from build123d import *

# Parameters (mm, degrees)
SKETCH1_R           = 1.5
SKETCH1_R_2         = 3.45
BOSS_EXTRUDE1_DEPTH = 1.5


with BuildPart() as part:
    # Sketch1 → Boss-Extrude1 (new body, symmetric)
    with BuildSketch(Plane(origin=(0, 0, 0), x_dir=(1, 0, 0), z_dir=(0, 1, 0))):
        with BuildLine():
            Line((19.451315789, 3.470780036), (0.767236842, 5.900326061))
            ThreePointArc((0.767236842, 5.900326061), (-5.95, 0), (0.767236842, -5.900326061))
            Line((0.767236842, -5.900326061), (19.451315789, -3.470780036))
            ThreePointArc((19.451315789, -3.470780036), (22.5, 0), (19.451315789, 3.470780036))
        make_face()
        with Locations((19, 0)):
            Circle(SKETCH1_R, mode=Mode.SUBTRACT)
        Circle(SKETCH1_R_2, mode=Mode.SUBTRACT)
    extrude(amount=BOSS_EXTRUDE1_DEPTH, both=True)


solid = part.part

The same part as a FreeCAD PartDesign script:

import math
import FreeCAD as App
import Part
import Sketcher
from FreeCAD import Vector

doc = App.newDocument("Part")
params = doc.addObject("Spreadsheet::Sheet", "Params")
for row, (alias, value) in enumerate([
    ("sketch1_diameter", "3 mm"),
    ("sketch1_diameter2", "6.9 mm"),
    ("sketch1_radius", "3.5 mm"),
    ("sketch1_radius2", "5.95 mm"),
    ("pad1_length", "3 mm"),
], start=1):
    params.set(f"A{row}", alias)
    params.set(f"B{row}", "=" + value)
    params.setAlias(f"B{row}", alias)

body = doc.addObject("PartDesign::Body", "Body")

# Sketch on XZ plane
sketch1 = body.newObject("Sketcher::SketchObject", "Sketch")
sketch1.AttachmentSupport = (doc.getObject("XZ_Plane"), [""])
sketch1.MapMode = "FlatFace"
sketch1.addGeometry(Part.LineSegment(Vector(19.451316, -3.47078, 0), Vector(0.767237, -5.900326, 0)), False)
sketch1.addGeometry(Part.ArcOfCircle(Part.Circle(Vector(0, 0, 0), Vector(0, 0, 1), 5.95), math.radians(82.591231), math.radians(277.408769)), False)
sketch1.addGeometry(Part.LineSegment(Vector(0.767237, 5.900326, 0), Vector(19.451316, 3.47078, 0)), False)
sketch1.addGeometry(Part.ArcOfCircle(Part.Circle(Vector(19, 0, 0), Vector(0, 0, 1), 3.5), math.radians(-82.591231), math.radians(82.591231)), False)
sketch1.addGeometry(Part.Circle(Vector(0, 0, 0), Vector(0, 0, 1), 3.45), False)
sketch1.addGeometry(Part.Circle(Vector(19, 0, 0), Vector(0, 0, 1), 1.5), False)
sketch1.addConstraint(Sketcher.Constraint("Tangent", 0, 2, 1, 2))
sketch1.addConstraint(Sketcher.Constraint("Tangent", 1, 1, 2, 1))
sketch1.addConstraint(Sketcher.Constraint("Tangent", 2, 2, 3, 2))
sketch1.addConstraint(Sketcher.Constraint("Tangent", 3, 1, 0, 1))
sketch1.addConstraint(Sketcher.Constraint("Coincident", 1, 3, -1, 1))
sketch1.addConstraint(Sketcher.Constraint("Coincident", 4, 3, -1, 1))
sketch1.addConstraint(Sketcher.Constraint("Coincident", 5, 3, 3, 3))
sketch1.addConstraint(Sketcher.Constraint("PointOnObject", 3, 3, -1))
sketch1.addConstraint(Sketcher.Constraint("Diameter", 5, 3.0))
sketch1.addConstraint(Sketcher.Constraint("Diameter", 4, 6.9))
sketch1.addConstraint(Sketcher.Constraint("Radius", 3, 3.5))
sketch1.addConstraint(Sketcher.Constraint("Radius", 1, 5.95))
sketch1.addConstraint(Sketcher.Constraint("DistanceX", -1, 1, 3, 3, 19.0))
sketch1.setExpression("Constraints[8]", "Params.sketch1_diameter")
sketch1.setExpression("Constraints[9]", "Params.sketch1_diameter2")
sketch1.setExpression("Constraints[10]", "Params.sketch1_radius")
sketch1.setExpression("Constraints[11]", "Params.sketch1_radius2")
pad1 = body.newObject("PartDesign::Pad", "Pad")
pad1.Profile = sketch1
pad1.setExpression("Length", "Params.pad1_length")
pad1.Midplane = True

doc.recompute()
